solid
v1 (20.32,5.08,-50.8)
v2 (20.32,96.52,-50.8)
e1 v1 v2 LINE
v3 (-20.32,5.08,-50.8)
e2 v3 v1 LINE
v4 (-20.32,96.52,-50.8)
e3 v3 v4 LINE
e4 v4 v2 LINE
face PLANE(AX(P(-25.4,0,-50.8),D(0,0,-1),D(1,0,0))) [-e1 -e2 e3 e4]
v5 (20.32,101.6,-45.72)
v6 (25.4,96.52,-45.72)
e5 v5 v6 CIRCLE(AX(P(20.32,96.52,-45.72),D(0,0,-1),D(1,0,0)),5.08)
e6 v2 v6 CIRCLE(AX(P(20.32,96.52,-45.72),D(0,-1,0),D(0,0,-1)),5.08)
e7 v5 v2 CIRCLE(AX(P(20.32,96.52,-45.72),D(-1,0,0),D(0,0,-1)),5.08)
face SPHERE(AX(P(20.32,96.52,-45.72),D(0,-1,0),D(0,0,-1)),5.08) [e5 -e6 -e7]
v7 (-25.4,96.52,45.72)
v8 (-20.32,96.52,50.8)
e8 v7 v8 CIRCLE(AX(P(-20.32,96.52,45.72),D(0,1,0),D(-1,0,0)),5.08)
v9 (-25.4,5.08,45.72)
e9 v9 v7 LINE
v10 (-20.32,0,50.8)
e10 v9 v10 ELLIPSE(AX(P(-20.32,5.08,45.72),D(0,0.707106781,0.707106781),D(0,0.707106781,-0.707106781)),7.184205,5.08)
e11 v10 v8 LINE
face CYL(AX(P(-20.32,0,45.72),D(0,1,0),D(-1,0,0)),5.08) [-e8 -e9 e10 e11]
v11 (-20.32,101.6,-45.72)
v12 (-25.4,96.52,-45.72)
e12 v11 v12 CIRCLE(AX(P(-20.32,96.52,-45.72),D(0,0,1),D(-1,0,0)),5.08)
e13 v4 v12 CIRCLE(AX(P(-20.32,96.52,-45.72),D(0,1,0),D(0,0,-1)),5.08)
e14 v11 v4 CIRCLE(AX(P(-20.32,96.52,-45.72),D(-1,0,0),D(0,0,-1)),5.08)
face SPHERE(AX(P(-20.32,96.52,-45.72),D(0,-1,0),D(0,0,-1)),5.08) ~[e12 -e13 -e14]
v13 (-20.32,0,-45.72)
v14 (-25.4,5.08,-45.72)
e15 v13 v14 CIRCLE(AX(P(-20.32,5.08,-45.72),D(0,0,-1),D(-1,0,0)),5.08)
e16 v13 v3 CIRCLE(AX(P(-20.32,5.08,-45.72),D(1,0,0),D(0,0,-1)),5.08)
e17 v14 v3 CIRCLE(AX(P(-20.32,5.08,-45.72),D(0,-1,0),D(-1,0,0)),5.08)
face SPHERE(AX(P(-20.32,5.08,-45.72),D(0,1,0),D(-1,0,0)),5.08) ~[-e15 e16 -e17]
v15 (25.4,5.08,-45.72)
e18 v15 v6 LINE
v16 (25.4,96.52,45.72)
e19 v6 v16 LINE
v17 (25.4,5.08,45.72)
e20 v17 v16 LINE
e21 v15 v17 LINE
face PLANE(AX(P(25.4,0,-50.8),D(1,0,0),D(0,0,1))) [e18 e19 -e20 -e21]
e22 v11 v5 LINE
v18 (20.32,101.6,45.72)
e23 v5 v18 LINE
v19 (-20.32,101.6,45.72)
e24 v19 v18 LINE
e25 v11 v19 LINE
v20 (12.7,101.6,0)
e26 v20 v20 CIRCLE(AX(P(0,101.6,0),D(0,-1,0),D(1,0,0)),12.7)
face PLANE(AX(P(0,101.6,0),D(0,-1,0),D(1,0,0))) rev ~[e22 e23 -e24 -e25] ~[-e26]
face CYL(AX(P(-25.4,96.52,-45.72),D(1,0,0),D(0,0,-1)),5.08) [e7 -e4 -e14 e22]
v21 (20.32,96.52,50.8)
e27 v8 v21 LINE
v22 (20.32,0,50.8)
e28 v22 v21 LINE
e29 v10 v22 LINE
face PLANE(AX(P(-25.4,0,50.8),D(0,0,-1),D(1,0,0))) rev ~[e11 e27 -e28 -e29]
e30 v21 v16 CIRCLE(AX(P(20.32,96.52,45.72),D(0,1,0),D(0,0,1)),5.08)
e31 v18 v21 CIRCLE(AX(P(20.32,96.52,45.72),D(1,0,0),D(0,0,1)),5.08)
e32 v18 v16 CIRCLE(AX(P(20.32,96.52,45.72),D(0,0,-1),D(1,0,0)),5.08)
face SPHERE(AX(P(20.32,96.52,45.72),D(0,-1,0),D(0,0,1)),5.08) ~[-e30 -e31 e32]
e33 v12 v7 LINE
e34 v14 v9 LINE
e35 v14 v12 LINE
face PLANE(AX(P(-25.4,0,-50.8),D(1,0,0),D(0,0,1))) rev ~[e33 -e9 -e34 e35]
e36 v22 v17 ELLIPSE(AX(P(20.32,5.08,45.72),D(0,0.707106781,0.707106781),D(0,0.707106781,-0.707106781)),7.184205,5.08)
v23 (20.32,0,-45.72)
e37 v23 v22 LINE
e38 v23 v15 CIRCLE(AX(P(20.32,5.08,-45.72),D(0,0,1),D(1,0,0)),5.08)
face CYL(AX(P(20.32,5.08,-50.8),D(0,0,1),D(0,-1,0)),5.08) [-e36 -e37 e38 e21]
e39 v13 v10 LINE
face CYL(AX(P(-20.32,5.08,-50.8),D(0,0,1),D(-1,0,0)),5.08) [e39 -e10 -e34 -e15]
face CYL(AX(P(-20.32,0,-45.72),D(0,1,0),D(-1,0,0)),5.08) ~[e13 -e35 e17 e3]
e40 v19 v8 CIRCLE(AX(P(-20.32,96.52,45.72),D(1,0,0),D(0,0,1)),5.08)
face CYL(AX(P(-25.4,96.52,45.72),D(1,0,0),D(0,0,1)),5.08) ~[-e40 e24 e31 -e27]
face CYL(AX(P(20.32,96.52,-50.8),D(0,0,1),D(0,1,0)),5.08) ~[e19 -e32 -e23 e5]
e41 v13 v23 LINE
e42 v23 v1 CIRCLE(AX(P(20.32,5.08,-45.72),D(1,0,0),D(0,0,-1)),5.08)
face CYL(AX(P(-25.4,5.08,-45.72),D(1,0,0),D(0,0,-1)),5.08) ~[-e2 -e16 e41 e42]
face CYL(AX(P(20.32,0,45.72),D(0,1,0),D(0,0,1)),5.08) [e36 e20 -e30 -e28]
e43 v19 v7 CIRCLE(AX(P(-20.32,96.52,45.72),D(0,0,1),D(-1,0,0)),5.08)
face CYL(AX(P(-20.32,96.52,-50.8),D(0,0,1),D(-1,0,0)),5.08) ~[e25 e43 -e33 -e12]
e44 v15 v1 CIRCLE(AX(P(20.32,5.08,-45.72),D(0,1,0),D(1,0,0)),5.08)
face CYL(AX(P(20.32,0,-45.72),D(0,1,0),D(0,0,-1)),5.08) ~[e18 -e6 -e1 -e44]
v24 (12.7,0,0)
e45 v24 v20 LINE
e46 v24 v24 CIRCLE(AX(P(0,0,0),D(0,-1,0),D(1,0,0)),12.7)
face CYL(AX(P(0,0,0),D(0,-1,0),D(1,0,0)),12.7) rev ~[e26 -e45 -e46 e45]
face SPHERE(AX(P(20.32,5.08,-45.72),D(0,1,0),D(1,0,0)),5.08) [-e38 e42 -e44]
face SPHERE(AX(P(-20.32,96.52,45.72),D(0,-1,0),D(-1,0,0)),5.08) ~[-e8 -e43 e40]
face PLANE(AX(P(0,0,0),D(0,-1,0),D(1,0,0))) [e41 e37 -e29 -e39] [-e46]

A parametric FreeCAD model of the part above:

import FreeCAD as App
import Part
import Sketcher

V = App.Vector
Q = App.Units.Quantity


def edges_at(feature, points):
    """Names of the edges that pass closest to the given points."""
    edges = feature.Shape.Edges
    near = lambda p: min(range(len(edges)), key=lambda i: edges[i].distToShape(Part.Vertex(*p))[0])
    return sorted({f"Edge{near(p) + 1}" for p in points})


def add_polygon(sketch, points):
    """Adds a closed chain of lines whose ends are joined by coincident constraints."""
    first, n = sketch.GeometryCount, len(points)
    for a, b in zip(points, points[1:] + points[:1]):
        sketch.addGeometry(Part.LineSegment(App.Vector(*a, 0), App.Vector(*b, 0)), False)
    for i in range(n):
        sketch.addConstraint(Sketcher.Constraint("Coincident", first + i, 2, first + (i + 1) % n, 1))

doc = App.newDocument("Part")
body = doc.addObject("PartDesign::Body", "Body")

# Sketch on XZ plane
sketch1 = body.newObject("Sketcher::SketchObject", "Sketch")
sketch1.AttachmentSupport = (doc.getObject("XZ_Plane"), [""])
sketch1.MapMode = "FlatFace"
add_polygon(sketch1, [(-25, 51), (-25, -51), (25, -51), (25, 51)])  # lines 0-3
sketch1.addConstraint([
    Sketcher.Constraint("Vertical", 0),
    Sketcher.Constraint("Horizontal", 1),
    Sketcher.Constraint("Vertical", 2),
    Sketcher.Constraint("Horizontal", 3),
    Sketcher.Constraint("Symmetric", 0, 2, 2, 2, -1, 1),
    Sketcher.Constraint("DistanceX", 1, 1, 1, 2, Q("2 in")),
    Sketcher.Constraint("DistanceY", 0, 2, 0, 1, Q("4 in")),
])
pad1 = body.newObject("PartDesign::Pad", "Pad")
pad1.Profile = sketch1
pad1.Length = Q("4 in")
pad1.Reversed = True

# Sketch on XZ plane
sketch2 = body.newObject("Sketcher::SketchObject", "Sketch001")
sketch2.AttachmentSupport = (doc.getObject("XZ_Plane"), [""])
sketch2.MapMode = "FlatFace"
sketch2.addGeometry(Part.Circle(V(0, 0, 0), V(0, 0, 1), 13), False)
sketch2.addConstraint([
    Sketcher.Constraint("Coincident", 0, 3, -1, 1),
    Sketcher.Constraint("Diameter", 0, Q("1 in")),
])
pocket1 = body.newObject("PartDesign::Pocket", "Pocket")
pocket1.Profile = sketch2
pocket1.Type = "ThroughAll"
doc.recompute()

fillet = body.newObject("PartDesign::Fillet", "Fillet")
fillet.Base = (pocket1, edges_at(pocket1, [
    (25.4, 50.8, 50.8),
    (-25.4, 50.8, 50.8),
    (25.4, 50.8, -50.8),
    (-25.4, 50.8, -50.8),
    (0, 101.6, -50.8),
    (-25.4, 101.6, 0),
    (0, 101.6, 50.8),
    (25.4, 101.6, 0),
    (25.4, 0, 0),
    (-25.4, 0, 0),
    (0, 0, -50.8),
]))
fillet.Radius = Q("0.2 in")

doc.recompute()
